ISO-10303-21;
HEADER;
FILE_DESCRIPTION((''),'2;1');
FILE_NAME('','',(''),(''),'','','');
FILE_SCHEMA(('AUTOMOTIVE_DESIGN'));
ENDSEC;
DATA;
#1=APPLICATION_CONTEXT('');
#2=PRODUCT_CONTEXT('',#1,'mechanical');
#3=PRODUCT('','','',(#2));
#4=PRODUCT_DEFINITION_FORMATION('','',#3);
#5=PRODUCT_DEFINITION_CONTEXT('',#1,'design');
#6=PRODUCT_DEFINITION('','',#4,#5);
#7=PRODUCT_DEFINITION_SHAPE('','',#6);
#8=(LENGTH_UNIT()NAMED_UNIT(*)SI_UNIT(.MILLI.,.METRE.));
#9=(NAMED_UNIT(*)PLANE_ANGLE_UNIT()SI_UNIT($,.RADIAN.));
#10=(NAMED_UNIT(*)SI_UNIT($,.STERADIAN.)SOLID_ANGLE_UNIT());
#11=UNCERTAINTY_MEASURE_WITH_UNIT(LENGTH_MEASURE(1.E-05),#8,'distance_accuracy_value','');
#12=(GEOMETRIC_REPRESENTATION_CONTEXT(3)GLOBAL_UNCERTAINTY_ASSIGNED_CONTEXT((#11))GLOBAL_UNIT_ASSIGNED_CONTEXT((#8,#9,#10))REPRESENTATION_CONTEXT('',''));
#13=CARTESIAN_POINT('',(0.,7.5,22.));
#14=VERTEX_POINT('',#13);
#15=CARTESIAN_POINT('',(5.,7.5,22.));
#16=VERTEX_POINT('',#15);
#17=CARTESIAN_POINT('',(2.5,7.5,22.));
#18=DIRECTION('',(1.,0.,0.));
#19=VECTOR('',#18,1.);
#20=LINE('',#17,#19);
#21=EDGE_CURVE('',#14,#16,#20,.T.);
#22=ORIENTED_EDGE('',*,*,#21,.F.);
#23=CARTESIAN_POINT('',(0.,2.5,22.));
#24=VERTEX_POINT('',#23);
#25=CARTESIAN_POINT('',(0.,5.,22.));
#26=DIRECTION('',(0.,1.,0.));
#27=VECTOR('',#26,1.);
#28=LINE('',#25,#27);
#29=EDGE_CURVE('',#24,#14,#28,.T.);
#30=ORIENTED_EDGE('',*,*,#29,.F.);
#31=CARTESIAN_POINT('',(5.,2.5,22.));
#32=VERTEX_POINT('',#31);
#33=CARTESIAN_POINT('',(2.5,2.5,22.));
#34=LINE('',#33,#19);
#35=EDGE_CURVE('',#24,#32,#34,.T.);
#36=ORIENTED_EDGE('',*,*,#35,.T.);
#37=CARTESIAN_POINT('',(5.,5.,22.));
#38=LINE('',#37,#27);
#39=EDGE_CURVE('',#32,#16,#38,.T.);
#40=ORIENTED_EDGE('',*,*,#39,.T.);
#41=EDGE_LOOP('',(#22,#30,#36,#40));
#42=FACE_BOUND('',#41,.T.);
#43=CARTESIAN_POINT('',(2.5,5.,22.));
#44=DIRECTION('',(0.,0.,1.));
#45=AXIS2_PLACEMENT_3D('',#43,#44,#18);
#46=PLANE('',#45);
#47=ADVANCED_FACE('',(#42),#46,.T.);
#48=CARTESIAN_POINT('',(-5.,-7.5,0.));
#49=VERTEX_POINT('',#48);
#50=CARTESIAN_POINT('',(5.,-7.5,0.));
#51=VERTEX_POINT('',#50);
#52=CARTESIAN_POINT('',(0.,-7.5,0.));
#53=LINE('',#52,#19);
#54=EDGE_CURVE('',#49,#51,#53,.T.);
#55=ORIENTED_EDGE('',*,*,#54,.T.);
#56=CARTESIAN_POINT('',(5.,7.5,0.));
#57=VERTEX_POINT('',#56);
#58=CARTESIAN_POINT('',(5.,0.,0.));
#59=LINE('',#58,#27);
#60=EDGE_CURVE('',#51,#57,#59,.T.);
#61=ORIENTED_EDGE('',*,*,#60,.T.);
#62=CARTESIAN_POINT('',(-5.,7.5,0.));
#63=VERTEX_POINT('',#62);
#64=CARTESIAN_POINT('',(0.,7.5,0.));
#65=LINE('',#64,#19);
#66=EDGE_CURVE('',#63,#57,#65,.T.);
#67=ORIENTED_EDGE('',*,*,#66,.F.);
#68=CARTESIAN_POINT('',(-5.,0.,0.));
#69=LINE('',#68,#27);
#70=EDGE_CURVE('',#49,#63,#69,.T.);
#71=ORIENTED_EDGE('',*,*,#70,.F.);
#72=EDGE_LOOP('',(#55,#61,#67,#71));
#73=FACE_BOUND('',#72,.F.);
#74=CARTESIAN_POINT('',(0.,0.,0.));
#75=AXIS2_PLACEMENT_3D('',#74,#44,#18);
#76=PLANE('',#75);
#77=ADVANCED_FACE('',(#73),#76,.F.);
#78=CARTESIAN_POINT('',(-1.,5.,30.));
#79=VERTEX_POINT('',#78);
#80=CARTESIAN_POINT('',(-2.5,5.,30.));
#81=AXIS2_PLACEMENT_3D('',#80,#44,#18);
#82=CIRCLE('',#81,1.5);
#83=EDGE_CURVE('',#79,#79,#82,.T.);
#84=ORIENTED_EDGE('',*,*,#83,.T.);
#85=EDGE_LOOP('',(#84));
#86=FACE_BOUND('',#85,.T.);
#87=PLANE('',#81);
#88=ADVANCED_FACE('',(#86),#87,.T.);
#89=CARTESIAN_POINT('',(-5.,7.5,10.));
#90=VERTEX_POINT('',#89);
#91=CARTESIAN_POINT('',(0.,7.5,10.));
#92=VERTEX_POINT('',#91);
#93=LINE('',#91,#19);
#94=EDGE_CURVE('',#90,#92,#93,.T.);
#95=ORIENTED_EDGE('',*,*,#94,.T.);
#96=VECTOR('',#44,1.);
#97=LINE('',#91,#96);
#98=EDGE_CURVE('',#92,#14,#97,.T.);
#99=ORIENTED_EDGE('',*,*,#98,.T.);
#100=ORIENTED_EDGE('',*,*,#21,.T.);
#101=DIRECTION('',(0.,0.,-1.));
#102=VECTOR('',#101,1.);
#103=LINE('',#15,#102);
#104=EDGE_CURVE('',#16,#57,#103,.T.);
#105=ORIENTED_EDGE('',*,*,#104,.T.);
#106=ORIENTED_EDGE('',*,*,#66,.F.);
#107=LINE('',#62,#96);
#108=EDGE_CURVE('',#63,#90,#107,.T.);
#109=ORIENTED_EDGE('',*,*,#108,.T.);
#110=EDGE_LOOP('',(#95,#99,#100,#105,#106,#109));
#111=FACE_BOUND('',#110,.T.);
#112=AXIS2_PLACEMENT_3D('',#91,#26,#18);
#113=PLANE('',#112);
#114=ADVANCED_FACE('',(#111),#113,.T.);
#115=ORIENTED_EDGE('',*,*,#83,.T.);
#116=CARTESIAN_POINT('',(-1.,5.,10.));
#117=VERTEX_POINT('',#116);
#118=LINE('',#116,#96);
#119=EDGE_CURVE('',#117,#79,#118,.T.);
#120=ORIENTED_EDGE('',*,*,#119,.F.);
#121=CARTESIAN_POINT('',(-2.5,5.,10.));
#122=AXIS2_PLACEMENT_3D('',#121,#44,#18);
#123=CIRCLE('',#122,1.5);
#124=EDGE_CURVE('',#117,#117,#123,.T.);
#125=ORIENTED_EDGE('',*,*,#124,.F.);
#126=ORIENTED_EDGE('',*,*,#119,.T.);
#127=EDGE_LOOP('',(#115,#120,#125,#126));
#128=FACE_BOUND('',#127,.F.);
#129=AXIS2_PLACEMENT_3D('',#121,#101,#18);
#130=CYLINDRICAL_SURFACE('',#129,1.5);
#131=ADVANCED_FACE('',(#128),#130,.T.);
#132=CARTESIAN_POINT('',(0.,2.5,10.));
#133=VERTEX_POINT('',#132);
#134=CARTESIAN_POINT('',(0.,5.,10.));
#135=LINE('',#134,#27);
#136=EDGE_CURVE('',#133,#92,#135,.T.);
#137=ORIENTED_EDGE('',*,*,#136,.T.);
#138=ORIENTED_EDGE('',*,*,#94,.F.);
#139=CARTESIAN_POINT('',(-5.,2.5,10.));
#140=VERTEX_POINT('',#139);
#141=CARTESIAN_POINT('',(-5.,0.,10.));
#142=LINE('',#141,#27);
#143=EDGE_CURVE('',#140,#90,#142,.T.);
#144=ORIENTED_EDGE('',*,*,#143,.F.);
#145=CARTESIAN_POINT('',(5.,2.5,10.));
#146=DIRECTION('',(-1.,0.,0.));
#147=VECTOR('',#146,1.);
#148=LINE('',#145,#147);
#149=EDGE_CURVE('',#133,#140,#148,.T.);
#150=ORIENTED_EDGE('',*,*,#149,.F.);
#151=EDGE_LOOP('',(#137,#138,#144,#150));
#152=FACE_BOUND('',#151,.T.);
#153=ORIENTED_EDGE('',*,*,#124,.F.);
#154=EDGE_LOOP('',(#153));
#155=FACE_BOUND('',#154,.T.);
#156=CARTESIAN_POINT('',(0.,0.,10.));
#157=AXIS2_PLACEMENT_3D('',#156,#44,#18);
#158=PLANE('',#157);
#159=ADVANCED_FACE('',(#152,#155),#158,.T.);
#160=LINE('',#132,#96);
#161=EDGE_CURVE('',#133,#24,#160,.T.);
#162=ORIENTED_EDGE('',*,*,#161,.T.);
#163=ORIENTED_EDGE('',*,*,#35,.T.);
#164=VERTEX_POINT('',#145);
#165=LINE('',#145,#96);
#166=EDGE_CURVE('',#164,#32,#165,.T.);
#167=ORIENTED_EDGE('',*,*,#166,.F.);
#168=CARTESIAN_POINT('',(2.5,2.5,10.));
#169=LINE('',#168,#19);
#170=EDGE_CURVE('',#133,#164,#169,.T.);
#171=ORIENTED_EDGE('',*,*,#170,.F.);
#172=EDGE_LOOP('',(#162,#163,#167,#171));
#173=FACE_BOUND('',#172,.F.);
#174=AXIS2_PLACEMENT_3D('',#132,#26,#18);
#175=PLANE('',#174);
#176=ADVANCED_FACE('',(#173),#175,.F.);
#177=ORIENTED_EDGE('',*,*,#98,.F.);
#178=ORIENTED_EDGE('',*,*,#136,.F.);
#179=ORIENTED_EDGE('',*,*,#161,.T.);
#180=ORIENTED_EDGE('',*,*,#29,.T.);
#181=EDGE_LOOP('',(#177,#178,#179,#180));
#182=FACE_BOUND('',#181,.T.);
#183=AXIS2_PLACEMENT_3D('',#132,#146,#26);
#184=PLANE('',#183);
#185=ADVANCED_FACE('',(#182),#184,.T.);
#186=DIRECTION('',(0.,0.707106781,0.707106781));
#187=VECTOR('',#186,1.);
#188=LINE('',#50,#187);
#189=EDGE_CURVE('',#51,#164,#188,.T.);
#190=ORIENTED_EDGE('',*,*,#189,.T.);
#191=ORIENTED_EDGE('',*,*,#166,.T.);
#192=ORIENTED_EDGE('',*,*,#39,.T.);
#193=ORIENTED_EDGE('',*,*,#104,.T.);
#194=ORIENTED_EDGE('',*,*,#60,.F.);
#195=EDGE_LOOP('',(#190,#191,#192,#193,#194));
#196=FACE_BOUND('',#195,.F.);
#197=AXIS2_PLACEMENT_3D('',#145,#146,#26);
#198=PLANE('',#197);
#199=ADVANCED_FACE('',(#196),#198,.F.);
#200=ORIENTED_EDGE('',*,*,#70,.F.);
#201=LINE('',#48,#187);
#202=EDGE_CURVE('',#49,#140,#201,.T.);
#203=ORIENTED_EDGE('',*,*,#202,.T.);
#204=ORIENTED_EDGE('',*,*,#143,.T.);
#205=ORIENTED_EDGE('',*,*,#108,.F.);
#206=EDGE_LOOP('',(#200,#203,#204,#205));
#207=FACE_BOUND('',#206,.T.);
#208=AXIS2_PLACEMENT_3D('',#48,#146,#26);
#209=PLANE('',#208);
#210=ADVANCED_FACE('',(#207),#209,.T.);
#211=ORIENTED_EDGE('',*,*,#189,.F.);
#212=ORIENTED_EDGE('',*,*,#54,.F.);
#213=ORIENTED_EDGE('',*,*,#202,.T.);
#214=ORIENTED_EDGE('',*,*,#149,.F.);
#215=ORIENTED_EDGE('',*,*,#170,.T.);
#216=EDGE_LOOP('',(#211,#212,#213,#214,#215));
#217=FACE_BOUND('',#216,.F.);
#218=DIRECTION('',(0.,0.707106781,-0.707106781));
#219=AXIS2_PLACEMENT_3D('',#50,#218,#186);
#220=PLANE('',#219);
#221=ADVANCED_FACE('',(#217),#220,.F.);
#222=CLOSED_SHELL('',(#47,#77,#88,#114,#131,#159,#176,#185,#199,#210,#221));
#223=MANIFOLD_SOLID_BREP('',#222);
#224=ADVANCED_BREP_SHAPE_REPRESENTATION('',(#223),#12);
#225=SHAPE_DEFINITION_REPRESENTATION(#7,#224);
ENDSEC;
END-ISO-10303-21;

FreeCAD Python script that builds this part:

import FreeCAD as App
import Part
import Sketcher
from FreeCAD import Vector

doc = App.newDocument("Part")
body = doc.addObject("PartDesign::Body", "Body")

sketch1 = body.newObject("Sketcher::SketchObject", "Sketch")
sketch1.AttachmentSupport = (doc.getObject("XY_Plane"), [""])
sketch1.MapMode = "FlatFace"
sketch1.addGeometry([
    Part.LineSegment(Vector(-5, 8, 0), Vector(-5, -8, 0)),
    Part.LineSegment(Vector(-5, -8, 0), Vector(5, -8, 0)),
    Part.LineSegment(Vector(5, -8, 0), Vector(5, 8, 0)),
    Part.LineSegment(Vector(5, 8, 0), Vector(-5, 8, 0)),
], False)
sketch1.addConstraint([
    Sketcher.Constraint("Coincident", 0, 2, 1, 1),
    Sketcher.Constraint("Coincident", 1, 2, 2, 1),
    Sketcher.Constraint("Coincident", 2, 2, 3, 1),
    Sketcher.Constraint("Coincident", 3, 2, 0, 1),
    Sketcher.Constraint("Vertical", 0),
    Sketcher.Constraint("Horizontal", 1),
    Sketcher.Constraint("Vertical", 2),
    Sketcher.Constraint("Horizontal", 3),
    Sketcher.Constraint("Symmetric", 0, 2, 2, 2, -1, 1),
    Sketcher.Constraint("DistanceX", 1, 1, 1, 2, 10.0),
    Sketcher.Constraint("DistanceY", 0, 2, 0, 1, 15.0),
])
pad1 = body.newObject("PartDesign::Pad", "Pad")
pad1.Profile = sketch1
pad1.Length = 10

sketch2 = body.newObject("Sketcher::SketchObject", "Sketch001")
sketch2.AttachmentSupport = (doc.getObject("XY_Plane"), [""])
sketch2.MapMode = "FlatFace"
sketch2.AttachmentOffset = App.Placement(Vector(0, 0, 10), App.Rotation())
sketch2.addGeometry([
    Part.LineSegment(Vector(0, 8, 0), Vector(0, 2, 0)),
    Part.LineSegment(Vector(0, 2, 0), Vector(5, 2, 0)),
    Part.LineSegment(Vector(5, 2, 0), Vector(5, 8, 0)),
    Part.LineSegment(Vector(5, 8, 0), Vector(0, 8, 0)),
], False)
sketch2.addConstraint([
    Sketcher.Constraint("Coincident", 0, 2, 1, 1),
    Sketcher.Constraint("Coincident", 1, 2, 2, 1),
    Sketcher.Constraint("Coincident", 2, 2, 3, 1),
    Sketcher.Constraint("Coincident", 3, 2, 0, 1),
    Sketcher.Constraint("Vertical", 0),
    Sketcher.Constraint("Horizontal", 1),
    Sketcher.Constraint("Vertical", 2),
    Sketcher.Constraint("Horizontal", 3),
    Sketcher.Constraint("PointOnObject", 0, 2, -2),
    Sketcher.Constraint("Equal", 3, 0),
    Sketcher.Constraint("DistanceX", 1, 1, 1, 2, 5.0),
    Sketcher.Constraint("DistanceY", -1, 1, 0, 2, 2.5),
])
pad2 = body.newObject("PartDesign::Pad", "Pad001")
pad2.Profile = sketch2
pad2.Length = 12

sketch3 = body.newObject("Sketcher::SketchObject", "Sketch002")
sketch3.AttachmentSupport = (doc.getObject("XY_Plane"), [""])
sketch3.MapMode = "FlatFace"
sketch3.AttachmentOffset = App.Placement(Vector(0, 0, 10), App.Rotation())
sketch3.addGeometry(Part.Circle(Vector(-2.5, 5, 0), Vector(0, 0, 1), 1.5), False)
sketch3.addConstraint([
    Sketcher.Constraint("Diameter", 0, 3.0),
    Sketcher.Constraint("DistanceY", -1, 1, 0, 3, 5.0),
    Sketcher.Constraint("DistanceX", 0, 3, -1, 1, 2.5),
])
pad3 = body.newObject("PartDesign::Pad", "Pad002")
pad3.Profile = sketch3
pad3.Length = 20

sketch4 = body.newObject("Sketcher::SketchObject", "Sketch003")
sketch4.AttachmentSupport = (doc.getObject("YZ_Plane"), [""])
sketch4.MapMode = "FlatFace"
sketch4.AttachmentOffset = App.Placement(Vector(0, 0, 5), App.Rotation())
sketch4.addGeometry([
    Part.LineSegment(Vector(-8, 10, 0), Vector(-8, 0, 0)),
    Part.LineSegment(Vector(-8, 0, 0), Vector(2, 10, 0)),
    Part.LineSegment(Vector(2, 10, 0), Vector(-8, 10, 0)),
], False)
sketch4.addConstraint([
    Sketcher.Constraint("Coincident", 0, 2, 1, 1),
    Sketcher.Constraint("Coincident", 1, 2, 2, 1),
    Sketcher.Constraint("Coincident", 2, 2, 0, 1),
    Sketcher.Constraint("Vertical", 0),
    Sketcher.Constraint("Horizontal", 2),
    Sketcher.Constraint("PointOnObject", 0, 2, -1),
    Sketcher.Constraint("Equal", 2, 0),
    Sketcher.Constraint("DistanceX", 2, 2, 2, 1, 10.0),
    Sketcher.Constraint("DistanceX", 0, 2, -1, 1, 7.5),
])
pocket1 = body.newObject("PartDesign::Pocket", "Pocket")
pocket1.Profile = sketch4
pocket1.Length = 10

doc.recompute()
